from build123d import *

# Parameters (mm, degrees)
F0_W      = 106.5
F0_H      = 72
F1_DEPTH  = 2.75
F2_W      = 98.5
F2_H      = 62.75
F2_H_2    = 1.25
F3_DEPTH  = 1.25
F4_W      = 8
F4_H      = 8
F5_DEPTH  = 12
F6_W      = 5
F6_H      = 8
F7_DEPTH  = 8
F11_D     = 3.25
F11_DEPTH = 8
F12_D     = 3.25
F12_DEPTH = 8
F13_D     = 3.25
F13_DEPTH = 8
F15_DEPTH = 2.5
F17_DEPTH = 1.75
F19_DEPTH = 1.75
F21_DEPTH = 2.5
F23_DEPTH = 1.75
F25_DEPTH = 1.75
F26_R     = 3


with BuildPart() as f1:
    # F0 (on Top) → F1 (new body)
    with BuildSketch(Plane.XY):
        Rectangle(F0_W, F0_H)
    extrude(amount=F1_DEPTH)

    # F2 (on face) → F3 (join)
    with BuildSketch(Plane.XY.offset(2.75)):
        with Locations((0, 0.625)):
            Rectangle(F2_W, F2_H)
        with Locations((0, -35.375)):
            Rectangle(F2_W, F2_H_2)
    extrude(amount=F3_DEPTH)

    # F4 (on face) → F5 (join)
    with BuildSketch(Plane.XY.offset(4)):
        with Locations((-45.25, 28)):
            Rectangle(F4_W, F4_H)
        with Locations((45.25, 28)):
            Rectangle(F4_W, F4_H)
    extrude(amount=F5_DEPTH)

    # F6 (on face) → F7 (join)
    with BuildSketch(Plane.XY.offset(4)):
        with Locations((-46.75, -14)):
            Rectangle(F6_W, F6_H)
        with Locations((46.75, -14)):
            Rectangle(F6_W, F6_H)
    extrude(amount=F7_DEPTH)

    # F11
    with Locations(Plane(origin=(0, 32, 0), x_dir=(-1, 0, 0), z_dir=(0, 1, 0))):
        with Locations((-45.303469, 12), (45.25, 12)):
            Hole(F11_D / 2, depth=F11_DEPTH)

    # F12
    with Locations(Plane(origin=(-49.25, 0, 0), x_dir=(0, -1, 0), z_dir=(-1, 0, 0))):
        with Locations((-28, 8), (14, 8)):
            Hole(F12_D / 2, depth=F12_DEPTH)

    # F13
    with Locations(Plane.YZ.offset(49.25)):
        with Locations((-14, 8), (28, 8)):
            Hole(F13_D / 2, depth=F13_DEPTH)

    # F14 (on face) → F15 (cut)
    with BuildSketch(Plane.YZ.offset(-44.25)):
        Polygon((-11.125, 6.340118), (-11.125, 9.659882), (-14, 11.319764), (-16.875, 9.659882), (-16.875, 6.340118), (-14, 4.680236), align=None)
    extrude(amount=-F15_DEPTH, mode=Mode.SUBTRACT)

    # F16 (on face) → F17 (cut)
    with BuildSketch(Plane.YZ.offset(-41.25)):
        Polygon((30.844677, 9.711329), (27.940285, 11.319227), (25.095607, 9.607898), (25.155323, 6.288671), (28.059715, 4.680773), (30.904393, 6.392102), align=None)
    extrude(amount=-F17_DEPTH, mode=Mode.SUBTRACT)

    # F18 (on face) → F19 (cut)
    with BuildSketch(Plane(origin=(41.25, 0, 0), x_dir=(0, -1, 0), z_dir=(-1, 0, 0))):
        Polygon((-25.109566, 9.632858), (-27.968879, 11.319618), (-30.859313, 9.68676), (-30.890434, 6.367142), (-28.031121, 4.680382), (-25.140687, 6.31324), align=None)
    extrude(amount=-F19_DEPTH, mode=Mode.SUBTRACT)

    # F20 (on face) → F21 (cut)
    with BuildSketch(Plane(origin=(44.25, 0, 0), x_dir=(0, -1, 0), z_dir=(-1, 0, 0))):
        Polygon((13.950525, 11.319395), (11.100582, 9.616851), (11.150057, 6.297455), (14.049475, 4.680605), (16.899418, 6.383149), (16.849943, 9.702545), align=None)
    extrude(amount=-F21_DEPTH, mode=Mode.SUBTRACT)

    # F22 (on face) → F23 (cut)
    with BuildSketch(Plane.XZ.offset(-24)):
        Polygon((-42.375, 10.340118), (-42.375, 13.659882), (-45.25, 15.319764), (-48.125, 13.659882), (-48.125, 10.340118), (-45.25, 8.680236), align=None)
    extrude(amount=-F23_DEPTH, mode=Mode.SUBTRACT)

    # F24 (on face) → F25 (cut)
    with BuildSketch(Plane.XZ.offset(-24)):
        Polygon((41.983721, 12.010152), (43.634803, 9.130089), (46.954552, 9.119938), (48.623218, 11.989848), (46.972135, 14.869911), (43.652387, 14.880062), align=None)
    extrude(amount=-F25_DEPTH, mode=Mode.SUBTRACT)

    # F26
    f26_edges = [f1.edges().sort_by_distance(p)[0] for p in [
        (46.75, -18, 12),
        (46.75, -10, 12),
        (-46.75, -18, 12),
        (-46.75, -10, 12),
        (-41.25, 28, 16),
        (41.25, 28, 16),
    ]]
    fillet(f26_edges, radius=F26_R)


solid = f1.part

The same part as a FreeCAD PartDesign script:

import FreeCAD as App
import Part
import Sketcher

V = App.Vector
Q = App.Units.Quantity


def edges_at(feature, points):
    """Names of the edges that pass closest to the given points."""
    edges = feature.Shape.Edges
    near = lambda p: min(range(len(edges)), key=lambda i: edges[i].distToShape(Part.Vertex(*p))[0])
    return sorted({f"Edge{near(p) + 1}" for p in points})

doc = App.newDocument("Part")
body = doc.addObject("PartDesign::Body", "Body")

sketch1 = doc.addObject("Sketcher::SketchObject", "Sketch")
body.addObject(sketch1)
sketch1.AttachmentSupport = (doc.XY_Plane, [""])
sketch1.MapMode = "FlatFace"
sketch1.addGeometry([
    Part.LineSegment(V(-53.25, 36, 0), V(-53.25, -36, 0)),
    Part.LineSegment(V(-53.25, -36, 0), V(53.25, -36, 0)),
    Part.LineSegment(V(53.25, -36, 0), V(53.25, 36, 0)),
    Part.LineSegment(V(53.25, 36, 0), V(-53.25, 36, 0)),
], False)
sketch1.addConstraint([
    Sketcher.Constraint("Coincident", 0, 2, 1, 1),
    Sketcher.Constraint("Coincident", 1, 2, 2, 1),
    Sketcher.Constraint("Coincident", 2, 2, 3, 1),
    Sketcher.Constraint("Coincident", 3, 2, 0, 1),
    Sketcher.Constraint("Vertical", 0),
    Sketcher.Constraint("Horizontal", 1),
    Sketcher.Constraint("Vertical", 2),
    Sketcher.Constraint("Horizontal", 3),
    Sketcher.Constraint("Symmetric", 0, 2, 2, 2, -1, 1),
    Sketcher.Constraint("DistanceY", 0, 2, 0, 1, Q("72 mm")),
    Sketcher.Constraint("DistanceX", 1, 1, 1, 2, Q("106.5 mm")),
])
pad1 = doc.addObject("PartDesign::Pad", "Pad")
body.addObject(pad1)
pad1.Profile = sketch1
pad1.Length = 2.75

sketch2 = doc.addObject("Sketcher::SketchObject", "Sketch001")
body.addObject(sketch2)
sketch2.AttachmentSupport = (doc.XY_Plane, [""])
sketch2.MapMode = "FlatFace"
sketch2.AttachmentOffset = App.Placement(V(0, 0, 2.75), App.Rotation())
sketch2.addGeometry([
    Part.LineSegment(V(-49.25, 32, 0), V(-49.25, -30.75, 0)),
    Part.LineSegment(V(-49.25, -30.75, 0), V(49.25, -30.75, 0)),
    Part.LineSegment(V(49.25, -30.75, 0), V(49.25, 32, 0)),
    Part.LineSegment(V(49.25, 32, 0), V(-49.25, 32, 0)),
    Part.LineSegment(V(-49.25, -34.75, 0), V(-49.25, -36, 0)),
    Part.LineSegment(V(-49.25, -36, 0), V(49.25, -36, 0)),
    Part.LineSegment(V(49.25, -36, 0), V(49.25, -34.75, 0)),
    Part.LineSegment(V(49.25, -34.75, 0), V(-49.25, -34.75, 0)),
], False)
sketch2.addConstraint([
    Sketcher.Constraint("Coincident", 0, 2, 1, 1),
    Sketcher.Constraint("Coincident", 1, 2, 2, 1),
    Sketcher.Constraint("Coincident", 2, 2, 3, 1),
    Sketcher.Constraint("Coincident", 3, 2, 0, 1),
    Sketcher.Constraint("Coincident", 4, 2, 5, 1),
    Sketcher.Constraint("Coincident", 5, 2, 6, 1),
    Sketcher.Constraint("Coincident", 6, 2, 7, 1),
    Sketcher.Constraint("Coincident", 7, 2, 4, 1),
    Sketcher.Constraint("Vertical", 0),
    Sketcher.Constraint("Horizontal", 1),
    Sketcher.Constraint("Vertical", 2),
    Sketcher.Constraint("Horizontal", 3),
    Sketcher.Constraint("Vertical", 4),
    Sketcher.Constraint("Horizontal", 5),
    Sketcher.Constraint("Vertical", 6),
    Sketcher.Constraint("Horizontal", 7),
    Sketcher.Constraint("Vertical", 3, 2, 4, 2),
    Sketcher.Constraint("Vertical", 2, 2, 5, 2),
    Sketcher.Constraint("DistanceX", 1, 1, 1, 2, Q("98.5 mm")),
    Sketcher.Constraint("DistanceY", -1, 1, 2, 2, Q("32 mm")),
    Sketcher.Constraint("DistanceY", 4, 2, -1, 1, Q("36 mm")),
    Sketcher.Constraint("DistanceY", 6, 2, 1, 2, Q("4 mm")),
    Sketcher.Constraint("DistanceY", 0, 2, 0, 1, Q("62.75 mm")),
    Sketcher.Constraint("DistanceX", 0, 2, -1, 1, Q("49.25 mm")),
])
pad2 = doc.addObject("PartDesign::Pad", "Pad001")
body.addObject(pad2)
pad2.Profile = sketch2
pad2.Length = 1.25

sketch3 = doc.addObject("Sketcher::SketchObject", "Sketch002")
body.addObject(sketch3)
sketch3.AttachmentSupport = (doc.XY_Plane, [""])
sketch3.MapMode = "FlatFace"
sketch3.AttachmentOffset = App.Placement(V(0, 0, 4), App.Rotation())
sketch3.addGeometry([
    Part.LineSegment(V(-49.25, 32, 0), V(-49.25, 24, 0)),
    Part.LineSegment(V(-49.25, 24, 0), V(-41.25, 24, 0)),
    Part.LineSegment(V(-41.25, 24, 0), V(-41.25, 32, 0)),
    Part.LineSegment(V(-41.25, 32, 0), V(-49.25, 32, 0)),
    Part.LineSegment(V(41.25, 32, 0), V(41.25, 24, 0)),
    Part.LineSegment(V(41.25, 24, 0), V(49.25, 24, 0)),
    Part.LineSegment(V(49.25, 24, 0), V(49.25, 32, 0)),
    Part.LineSegment(V(49.25, 32, 0), V(41.25, 32, 0)),
], False)
sketch3.addConstraint([
    Sketcher.Constraint("Coincident", 0, 2, 1, 1),
    Sketcher.Constraint("Coincident", 1, 2, 2, 1),
    Sketcher.Constraint("Coincident", 2, 2, 3, 1),
    Sketcher.Constraint("Coincident", 3, 2, 0, 1),
    Sketcher.Constraint("Coincident", 4, 2, 5, 1),
    Sketcher.Constraint("Coincident", 5, 2, 6, 1),
    Sketcher.Constraint("Coincident", 6, 2, 7, 1),
    Sketcher.Constraint("Coincident", 7, 2, 4, 1),
    Sketcher.Constraint("Vertical", 0),
    Sketcher.Constraint("Horizontal", 1),
    Sketcher.Constraint("Vertical", 2),
    Sketcher.Constraint("Horizontal", 3),
    Sketcher.Constraint("Vertical", 4),
    Sketcher.Constraint("Horizontal", 5),
    Sketcher.Constraint("Vertical", 6),
    Sketcher.Constraint("Horizontal", 7),
    Sketcher.Constraint("Symmetric", 1, 2, 4, 2, -2),
    Sketcher.Constraint("Symmetric", 3, 2, 6, 2, -2),
    Sketcher.Constraint("Equal", 7, 0),
    Sketcher.Constraint("DistanceX", 1, 1, 1, 2, Q("8 mm")),
    Sketcher.Constraint("DistanceY", -1, 1, 0, 2, Q("24 mm")),
    Sketcher.Constraint("DistanceX", 1, 2, 4, 2, Q("82.5 mm")),
])
pad3 = doc.addObject("PartDesign::Pad", "Pad002")
body.addObject(pad3)
pad3.Profile = sketch3
pad3.Length = 12

sketch4 = doc.addObject("Sketcher::SketchObject", "Sketch003")
body.addObject(sketch4)
sketch4.AttachmentSupport = (doc.XY_Plane, [""])
sketch4.MapMode = "FlatFace"
sketch4.AttachmentOffset = App.Placement(V(0, 0, 4), App.Rotation())
sketch4.addGeometry([
    Part.LineSegment(V(-49.25, -10, 0), V(-49.25, -18, 0)),
    Part.LineSegment(V(-49.25, -18, 0), V(-44.25, -18, 0)),
    Part.LineSegment(V(-44.25, -18, 0), V(-44.25, -10, 0)),
    Part.LineSegment(V(-44.25, -10, 0), V(-49.25, -10, 0)),
    Part.LineSegment(V(44.25, -10, 0), V(44.25, -18, 0)),
    Part.LineSegment(V(44.25, -18, 0), V(49.25, -18, 0)),
    Part.LineSegment(V(49.25, -18, 0), V(49.25, -10, 0)),
    Part.LineSegment(V(49.25, -10, 0), V(44.25, -10, 0)),
], False)
sketch4.addConstraint([
    Sketcher.Constraint("Coincident", 0, 2, 1, 1),
    Sketcher.Constraint("Coincident", 1, 2, 2, 1),
    Sketcher.Constraint("Coincident", 2, 2, 3, 1),
    Sketcher.Constraint("Coincident", 3, 2, 0, 1),
    Sketcher.Constraint("Coincident", 4, 2, 5, 1),
    Sketcher.Constraint("Coincident", 5, 2, 6, 1),
    Sketcher.Constraint("Coincident", 6, 2, 7, 1),
    Sketcher.Constraint("Coincident", 7, 2, 4, 1),
    Sketcher.Constraint("Vertical", 0),
    Sketcher.Constraint("Horizontal", 1),
    Sketcher.Constraint("Vertical", 2),
    Sketcher.Constraint("Horizontal", 3),
    Sketcher.Constraint("Vertical", 4),
    Sketcher.Constraint("Horizontal", 5),
    Sketcher.Constraint("Vertical", 6),
    Sketcher.Constraint("Horizontal", 7),
    Sketcher.Constraint("Symmetric", 1, 2, 4, 2, -2),
    Sketcher.Constraint("Symmetric", 3, 2, 6, 2, -2),
    Sketcher.Constraint("DistanceX", 1, 1, 1, 2, Q("5 mm")),
    Sketcher.Constraint("DistanceY", 0, 2, 0, 1, Q("8 mm")),
    Sketcher.Constraint("DistanceY", 0, 2, -1, 1, Q("18 mm")),
    Sketcher.Constraint("DistanceX", 1, 2, 4, 2, Q("88.5 mm")),
])
pad4 = doc.addObject("PartDesign::Pad", "Pad003")
body.addObject(pad4)
pad4.Profile = sketch4
pad4.Length = 8

sketch5 = doc.addObject("Sketcher::SketchObject", "Sketch004")
body.addObject(sketch5)
sketch5.AttachmentSupport = (doc.XZ_Plane, [""])
sketch5.MapMode = "FlatFace"
sketch5.AttachmentOffset = App.Placement(V(0, 0, -32), App.Rotation())
sketch5.addGeometry([
    Part.Circle(V(45.303469, 12, 0), V(0, 0, 1), 1.625),
    Part.Circle(V(-45.25, 12, 0), V(0, 0, 1), 1.625),
], False)
sketch5.addConstraint([
    Sketcher.Constraint("Equal", 0, 1),
    Sketcher.Constraint("Horizontal", 0, 3, 1, 3),
    Sketcher.Constraint("Diameter", 0, Q("3.25 mm")),
    Sketcher.Constraint("DistanceY", -1, 1, 0, 3, Q("12 mm")),
    Sketcher.Constraint("DistanceX", 1, 3, -1, 1, Q("45.25 mm")),
    Sketcher.Constraint("DistanceX", -1, 1, 0, 3, Q("45.303469 mm")),
])
doc.recompute()
hole = doc.addObject("PartDesign::Hole", "Hole")
body.addObject(hole)
hole.Profile = sketch5
hole.ThreadType = "None"
hole.Diameter = 3.25
hole.DepthType = "Dimension"
hole.Depth = 8
hole.DrillPoint = "Flat"
hole.Reversed = True

sketch6 = doc.addObject("Sketcher::SketchObject", "Sketch005")
body.addObject(sketch6)
sketch6.AttachmentSupport = (doc.YZ_Plane, [""])
sketch6.MapMode = "FlatFace"
sketch6.AttachmentOffset = App.Placement(V(0, 0, -49.25), App.Rotation())
sketch6.addGeometry([
    Part.Circle(V(28, 8, 0), V(0, 0, 1), 1.625),
    Part.Circle(V(-14, 8, 0), V(0, 0, 1), 1.625),
], False)
sketch6.addConstraint([
    Sketcher.Constraint("Equal", 0, 1),
    Sketcher.Constraint("Horizontal", 0, 3, 1, 3),
    Sketcher.Constraint("Diameter", 0, Q("3.25 mm")),
    Sketcher.Constraint("DistanceX", -1, 1, 0, 3, Q("28 mm")),
    Sketcher.Constraint("DistanceY", -1, 1, 0, 3, Q("8 mm")),
    Sketcher.Constraint("DistanceX", 1, 3, -1, 1, Q("14 mm")),
])
doc.recompute()
hole2 = doc.addObject("PartDesign::Hole", "Hole001")
body.addObject(hole2)
hole2.Profile = sketch6
hole2.ThreadType = "None"
hole2.Diameter = 3.25
hole2.DepthType = "Dimension"
hole2.Depth = 8
hole2.DrillPoint = "Flat"
hole2.Reversed = True

sketch7 = doc.addObject("Sketcher::SketchObject", "Sketch006")
body.addObject(sketch7)
sketch7.AttachmentSupport = (doc.YZ_Plane, [""])
sketch7.MapMode = "FlatFace"
sketch7.AttachmentOffset = App.Placement(V(0, 0, 49.25), App.Rotation())
sketch7.addGeometry([
    Part.Circle(V(-14, 8, 0), V(0, 0, 1), 1.625),
    Part.Circle(V(28, 8, 0), V(0, 0, 1), 1.625),
], False)
sketch7.addConstraint([
    Sketcher.Constraint("Equal", 0, 1),
    Sketcher.Constraint("Horizontal", 0, 3, 1, 3),
    Sketcher.Constraint("Diameter", 0, Q("3.25 mm")),
    Sketcher.Constraint("DistanceX", 0, 3, -1, 1, Q("14 mm")),
    Sketcher.Constraint("DistanceY", -1, 1, 0, 3, Q("8 mm")),
    Sketcher.Constraint("DistanceX", -1, 1, 1, 3, Q("28 mm")),
])
doc.recompute()
hole3 = doc.addObject("PartDesign::Hole", "Hole002")
body.addObject(hole3)
hole3.Profile = sketch7
hole3.ThreadType = "None"
hole3.Diameter = 3.25
hole3.DepthType = "Dimension"
hole3.Depth = 8
hole3.DrillPoint = "Flat"

sketch8 = doc.addObject("Sketcher::SketchObject", "Sketch007")
body.addObject(sketch8)
sketch8.AttachmentSupport = (doc.YZ_Plane, [""])
sketch8.MapMode = "FlatFace"
sketch8.AttachmentOffset = App.Placement(V(0, 0, -44.25), App.Rotation())
sketch8.addGeometry([
    Part.LineSegment(V(-11.125, 6.340118, 0), V(-11.125, 9.659882, 0)),
    Part.LineSegment(V(-11.125, 9.659882, 0), V(-14, 11.319764, 0)),
    Part.LineSegment(V(-14, 11.319764, 0), V(-16.875, 9.659882, 0)),
    Part.LineSegment(V(-16.875, 9.659882, 0), V(-16.875, 6.340118, 0)),
    Part.LineSegment(V(-16.875, 6.340118, 0), V(-14, 4.680236, 0)),
    Part.LineSegment(V(-14, 4.680236, 0), V(-11.125, 6.340118, 0)),
], False)
sketch8.addConstraint([
    Sketcher.Constraint("Coincident", 0, 2, 1, 1),
    Sketcher.Constraint("Coincident", 1, 2, 2, 1),
    Sketcher.Constraint("Coincident", 2, 2, 3, 1),
    Sketcher.Constraint("Coincident", 3, 2, 4, 1),
    Sketcher.Constraint("Coincident", 4, 2, 5, 1),
    Sketcher.Constraint("Coincident", 5, 2, 0, 1),
    Sketcher.Constraint("Vertical", 0),
    Sketcher.Constraint("Vertical", 3),
    Sketcher.Constraint("Parallel", 1, 4),
    Sketcher.Constraint("Parallel", 2, 5),
    Sketcher.Constraint("Horizontal", 0, 2, 2, 2),
    Sketcher.Constraint("Horizontal", 3, 2, 5, 2),
    Sketcher.Constraint("Vertical", 1, 2, 4, 2),
    Sketcher.Constraint("Angle", 1, Q("150 deg")),
    Sketcher.Constraint("DistanceX", 1, 2, -1, 1, Q("14 mm")),
    Sketcher.Constraint("DistanceX", 2, 2, 0, 2, Q("5.75 mm")),
    Sketcher.Constraint("DistanceY", 0, 1, 0, 2, Q("3.319764 mm")),
    Sketcher.Constraint("DistanceY", -1, 1, 3, 2, Q("6.340118 mm")),
])
pocket1 = doc.addObject("PartDesign::Pocket", "Pocket")
body.addObject(pocket1)
pocket1.Profile = sketch8
pocket1.Length = 2.5

sketch9 = doc.addObject("Sketcher::SketchObject", "Sketch008")
body.addObject(sketch9)
sketch9.AttachmentSupport = (doc.YZ_Plane, [""])
sketch9.MapMode = "FlatFace"
sketch9.AttachmentOffset = App.Placement(V(0, 0, -41.25), App.Rotation())
sketch9.addGeometry([
    Part.LineSegment(V(30.844677, 9.711329, 0), V(27.940285, 11.319227, 0)),
    Part.LineSegment(V(27.940285, 11.319227, 0), V(25.095607, 9.607898, 0)),
    Part.LineSegment(V(25.095607, 9.607898, 0), V(25.155323, 6.288671, 0)),
    Part.LineSegment(V(25.155323, 6.288671, 0), V(28.059715, 4.680773, 0)),
    Part.LineSegment(V(28.059715, 4.680773, 0), V(30.904393, 6.392102, 0)),
    Part.LineSegment(V(30.904393, 6.392102, 0), V(30.844677, 9.711329, 0)),
], False)
sketch9.addConstraint([
    Sketcher.Constraint("Coincident", 0, 2, 1, 1),
    Sketcher.Constraint("Coincident", 1, 2, 2, 1),
    Sketcher.Constraint("Coincident", 2, 2, 3, 1),
    Sketcher.Constraint("Coincident", 3, 2, 4, 1),
    Sketcher.Constraint("Coincident", 4, 2, 5, 1),
    Sketcher.Constraint("Coincident", 5, 2, 0, 1),
    Sketcher.Constraint("Parallel", 0, 3),
    Sketcher.Constraint("Parallel", 1, 4),
    Sketcher.Constraint("Parallel", 2, 5),
    Sketcher.Constraint("Equal", 0, 1),
    Sketcher.Constraint("Equal", 1, 2),
    Sketcher.Constraint("Equal", 2, 3),
    Sketcher.Constraint("DistanceY", 5, 2, 0, 2, Q("1.607898 mm")),
    Sketcher.Constraint("DistanceY", -1, 1, 2, 2, Q("6.288671 mm")),
    Sketcher.Constraint("DistanceY", -1, 1, 5, 2, Q("9.711329 mm")),
    Sketcher.Constraint("DistanceY", 1, 2, 0, 2, Q("1.711329 mm")),
    Sketcher.Constraint("DistanceX", 0, 2, 3, 2, Q("0.11943 mm")),
    Sketcher.Constraint("DistanceX", -1, 1, 0, 2, Q("27.940285 mm")),
])
pocket2 = doc.addObject("PartDesign::Pocket", "Pocket001")
body.addObject(pocket2)
pocket2.Profile = sketch9
pocket2.Length = 1.75

sketch10 = doc.addObject("Sketcher::SketchObject", "Sketch009")
body.addObject(sketch10)
sketch10.AttachmentSupport = (doc.YZ_Plane, [""])
sketch10.MapMode = "FlatFace"
sketch10.AttachmentOffset = App.Placement(V(0, 0, 41.25), App.Rotation())
sketch10.addGeometry([
    Part.LineSegment(V(25.109566, 9.632858, 0), V(27.968879, 11.319618, 0)),
    Part.LineSegment(V(27.968879, 11.319618, 0), V(30.859313, 9.68676, 0)),
    Part.LineSegment(V(30.859313, 9.68676, 0), V(30.890434, 6.367142, 0)),
    Part.LineSegment(V(30.890434, 6.367142, 0), V(28.031121, 4.680382, 0)),
    Part.LineSegment(V(28.031121, 4.680382, 0), V(25.140687, 6.31324, 0)),
    Part.LineSegment(V(25.140687, 6.31324, 0), V(25.109566, 9.632858, 0)),
], False)
sketch10.addConstraint([
    Sketcher.Constraint("Coincident", 0, 2, 1, 1),
    Sketcher.Constraint("Coincident", 1, 2, 2, 1),
    Sketcher.Constraint("Coincident", 2, 2, 3, 1),
    Sketcher.Constraint("Coincident", 3, 2, 4, 1),
    Sketcher.Constraint("Coincident", 4, 2, 5, 1),
    Sketcher.Constraint("Coincident", 5, 2, 0, 1),
    Sketcher.Constraint("Parallel", 0, 3),
    Sketcher.Constraint("Parallel", 1, 4),
    Sketcher.Constraint("Parallel", 2, 5),
    Sketcher.Constraint("Equal", 0, 1),
    Sketcher.Constraint("Equal", 1, 2),
    Sketcher.Constraint("Equal", 2, 3),
    Sketcher.Constraint("DistanceY", 4, 2, 2, 2, Q("0.053902 mm")),
    Sketcher.Constraint("DistanceX", -1, 1, 0, 2, Q("27.968879 mm")),
    Sketcher.Constraint("DistanceY", -1, 1, 1, 2, Q("9.68676 mm")),
    Sketcher.Constraint("DistanceX", -1, 1, 3, 2, Q("28.031121 mm")),
    Sketcher.Constraint("DistanceY", -1, 1, 3, 2, Q("4.680382 mm")),
    Sketcher.Constraint("DistanceY", -1, 1, 4, 2, Q("6.31324 mm")),
])
pocket3 = doc.addObject("PartDesign::Pocket", "Pocket002")
body.addObject(pocket3)
pocket3.Profile = sketch10
pocket3.Length = 1.75
pocket3.Reversed = True

sketch11 = doc.addObject("Sketcher::SketchObject", "Sketch010")
body.addObject(sketch11)
sketch11.AttachmentSupport = (doc.YZ_Plane, [""])
sketch11.MapMode = "FlatFace"
sketch11.AttachmentOffset = App.Placement(V(0, 0, 44.25), App.Rotation())
sketch11.addGeometry([
    Part.LineSegment(V(-13.950525, 11.319395, 0), V(-11.100582, 9.616851, 0)),
    Part.LineSegment(V(-11.100582, 9.616851, 0), V(-11.150057, 6.297455, 0)),
    Part.LineSegment(V(-11.150057, 6.297455, 0), V(-14.049475, 4.680605, 0)),
    Part.LineSegment(V(-14.049475, 4.680605, 0), V(-16.899418, 6.383149, 0)),
    Part.LineSegment(V(-16.899418, 6.383149, 0), V(-16.849943, 9.702545, 0)),
    Part.LineSegment(V(-16.849943, 9.702545, 0), V(-13.950525, 11.319395, 0)),
], False)
sketch11.addConstraint([
    Sketcher.Constraint("Coincident", 0, 2, 1, 1),
    Sketcher.Constraint("Coincident", 1, 2, 2, 1),
    Sketcher.Constraint("Coincident", 2, 2, 3, 1),
    Sketcher.Constraint("Coincident", 3, 2, 4, 1),
    Sketcher.Constraint("Coincident", 4, 2, 5, 1),
    Sketcher.Constraint("Coincident", 5, 2, 0, 1),
    Sketcher.Constraint("Parallel", 0, 3),
    Sketcher.Constraint("Parallel", 1, 4),
    Sketcher.Constraint("Parallel", 2, 5),
    Sketcher.Constraint("Equal", 0, 1),
    Sketcher.Constraint("Equal", 1, 2),
    Sketcher.Constraint("Equal", 2, 3),
    Sketcher.Constraint("DistanceX", 0, 2, -1, 1, Q("11.100582 mm")),
    Sketcher.Constraint("DistanceY", -1, 1, 0, 2, Q("9.616851 mm")),
    Sketcher.Constraint("DistanceX", 3, 2, -1, 1, Q("16.899418 mm")),
    Sketcher.Constraint("DistanceY", -1, 1, 3, 2, Q("6.383149 mm")),
    Sketcher.Constraint("DistanceY", 2, 2, 1, 2, Q("1.61685 mm")),
    Sketcher.Constraint("DistanceX", 3, 2, 1, 2, Q("5.749361 mm")),
])
pocket4 = doc.addObject("PartDesign::Pocket", "Pocket003")
body.addObject(pocket4)
pocket4.Profile = sketch11
pocket4.Length = 2.5
pocket4.Reversed = True

sketch12 = doc.addObject("Sketcher::SketchObject", "Sketch011")
body.addObject(sketch12)
sketch12.AttachmentSupport = (doc.XZ_Plane, [""])
sketch12.MapMode = "FlatFace"
sketch12.AttachmentOffset = App.Placement(V(0, 0, -24), App.Rotation())
sketch12.addGeometry([
    Part.LineSegment(V(-42.375, 10.340118, 0), V(-42.375, 13.659882, 0)),
    Part.LineSegment(V(-42.375, 13.659882, 0), V(-45.25, 15.319764, 0)),
    Part.LineSegment(V(-45.25, 15.319764, 0), V(-48.125, 13.659882, 0)),
    Part.LineSegment(V(-48.125, 13.659882, 0), V(-48.125, 10.340118, 0)),
    Part.LineSegment(V(-48.125, 10.340118, 0), V(-45.25, 8.680236, 0)),
    Part.LineSegment(V(-45.25, 8.680236, 0), V(-42.375, 10.340118, 0)),
], False)
sketch12.addConstraint([
    Sketcher.Constraint("Coincident", 0, 2, 1, 1),
    Sketcher.Constraint("Coincident", 1, 2, 2, 1),
    Sketcher.Constraint("Coincident", 2, 2, 3, 1),
    Sketcher.Constraint("Coincident", 3, 2, 4, 1),
    Sketcher.Constraint("Coincident", 4, 2, 5, 1),
    Sketcher.Constraint("Coincident", 5, 2, 0, 1),
    Sketcher.Constraint("Vertical", 0),
    Sketcher.Constraint("Vertical", 3),
    Sketcher.Constraint("Parallel", 1, 4),
    Sketcher.Constraint("Parallel", 2, 5),
    Sketcher.Constraint("Horizontal", 0, 2, 2, 2),
    Sketcher.Constraint("Horizontal", 3, 2, 5, 2),
    Sketcher.Constraint("Vertical", 1, 2, 4, 2),
    Sketcher.Constraint("Angle", 1, Q("150 deg")),
    Sketcher.Constraint("DistanceX", 1, 2, -1, 1, Q("45.25 mm")),
    Sketcher.Constraint("DistanceX", 2, 2, 0, 2, Q("5.75 mm")),
    Sketcher.Constraint("DistanceY", 0, 1, 0, 2, Q("3.319764 mm")),
    Sketcher.Constraint("DistanceY", -1, 1, 0, 2, Q("13.659882 mm")),
])
pocket5 = doc.addObject("PartDesign::Pocket", "Pocket004")
body.addObject(pocket5)
pocket5.Profile = sketch12
pocket5.Length = 1.75

sketch13 = doc.addObject("Sketcher::SketchObject", "Sketch012")
body.addObject(sketch13)
sketch13.AttachmentSupport = (doc.XZ_Plane, [""])
sketch13.MapMode = "FlatFace"
sketch13.AttachmentOffset = App.Placement(V(0, 0, -24), App.Rotation())
sketch13.addGeometry([
    Part.LineSegment(V(41.983721, 12.010152, 0), V(43.634803, 9.130089, 0)),
    Part.LineSegment(V(43.634803, 9.130089, 0), V(46.954552, 9.119938, 0)),
    Part.LineSegment(V(46.954552, 9.119938, 0), V(48.623218, 11.989848, 0)),
    Part.LineSegment(V(48.623218, 11.989848, 0), V(46.972135, 14.869911, 0)),
    Part.LineSegment(V(46.972135, 14.869911, 0), V(43.652387, 14.880062, 0)),
    Part.LineSegment(V(43.652387, 14.880062, 0), V(41.983721, 12.010152, 0)),
], False)
sketch13.addConstraint([
    Sketcher.Constraint("Coincident", 0, 2, 1, 1),
    Sketcher.Constraint("Coincident", 1, 2, 2, 1),
    Sketcher.Constraint("Coincident", 2, 2, 3, 1),
    Sketcher.Constraint("Coincident", 3, 2, 4, 1),
    Sketcher.Constraint("Coincident", 4, 2, 5, 1),
    Sketcher.Constraint("Coincident", 5, 2, 0, 1),
    Sketcher.Constraint("Parallel", 0, 3),
    Sketcher.Constraint("Parallel", 1, 4),
    Sketcher.Constraint("Parallel", 2, 5),
    Sketcher.Constraint("Equal", 0, 1),
    Sketcher.Constraint("Equal", 1, 2),
    Sketcher.Constraint("Equal", 2, 3),
    Sketcher.Constraint("DistanceY", -1, 1, 0, 2, Q("9.130089 mm")),
    Sketcher.Constraint("DistanceY", -1, 1, 3, 2, Q("14.869911 mm")),
    Sketcher.Constraint("DistanceX", -1, 1, 5, 2, Q("41.983721 mm")),
    Sketcher.Constraint("DistanceX", 0, 2, 1, 2, Q("3.319749 mm")),
    Sketcher.Constraint("DistanceY", 1, 2, 0, 2, Q("0.010151 mm")),
    Sketcher.Constraint("DistanceY", 1, 2, 2, 2, Q("2.86991 mm")),
])
pocket6 = doc.addObject("PartDesign::Pocket", "Pocket005")
body.addObject(pocket6)
pocket6.Profile = sketch13
pocket6.Length = 1.75
doc.recompute()

fillet = doc.addObject("PartDesign::Fillet", "Fillet")
body.addObject(fillet)
fillet.Base = (pocket6, edges_at(pocket6, [
    (46.75, -18, 12),
    (46.75, -10, 12),
    (-46.75, -18, 12),
    (-46.75, -10, 12),
    (-41.25, 28, 16),
    (41.25, 28, 16),
]))
fillet.Radius = 3

doc.recompute()
